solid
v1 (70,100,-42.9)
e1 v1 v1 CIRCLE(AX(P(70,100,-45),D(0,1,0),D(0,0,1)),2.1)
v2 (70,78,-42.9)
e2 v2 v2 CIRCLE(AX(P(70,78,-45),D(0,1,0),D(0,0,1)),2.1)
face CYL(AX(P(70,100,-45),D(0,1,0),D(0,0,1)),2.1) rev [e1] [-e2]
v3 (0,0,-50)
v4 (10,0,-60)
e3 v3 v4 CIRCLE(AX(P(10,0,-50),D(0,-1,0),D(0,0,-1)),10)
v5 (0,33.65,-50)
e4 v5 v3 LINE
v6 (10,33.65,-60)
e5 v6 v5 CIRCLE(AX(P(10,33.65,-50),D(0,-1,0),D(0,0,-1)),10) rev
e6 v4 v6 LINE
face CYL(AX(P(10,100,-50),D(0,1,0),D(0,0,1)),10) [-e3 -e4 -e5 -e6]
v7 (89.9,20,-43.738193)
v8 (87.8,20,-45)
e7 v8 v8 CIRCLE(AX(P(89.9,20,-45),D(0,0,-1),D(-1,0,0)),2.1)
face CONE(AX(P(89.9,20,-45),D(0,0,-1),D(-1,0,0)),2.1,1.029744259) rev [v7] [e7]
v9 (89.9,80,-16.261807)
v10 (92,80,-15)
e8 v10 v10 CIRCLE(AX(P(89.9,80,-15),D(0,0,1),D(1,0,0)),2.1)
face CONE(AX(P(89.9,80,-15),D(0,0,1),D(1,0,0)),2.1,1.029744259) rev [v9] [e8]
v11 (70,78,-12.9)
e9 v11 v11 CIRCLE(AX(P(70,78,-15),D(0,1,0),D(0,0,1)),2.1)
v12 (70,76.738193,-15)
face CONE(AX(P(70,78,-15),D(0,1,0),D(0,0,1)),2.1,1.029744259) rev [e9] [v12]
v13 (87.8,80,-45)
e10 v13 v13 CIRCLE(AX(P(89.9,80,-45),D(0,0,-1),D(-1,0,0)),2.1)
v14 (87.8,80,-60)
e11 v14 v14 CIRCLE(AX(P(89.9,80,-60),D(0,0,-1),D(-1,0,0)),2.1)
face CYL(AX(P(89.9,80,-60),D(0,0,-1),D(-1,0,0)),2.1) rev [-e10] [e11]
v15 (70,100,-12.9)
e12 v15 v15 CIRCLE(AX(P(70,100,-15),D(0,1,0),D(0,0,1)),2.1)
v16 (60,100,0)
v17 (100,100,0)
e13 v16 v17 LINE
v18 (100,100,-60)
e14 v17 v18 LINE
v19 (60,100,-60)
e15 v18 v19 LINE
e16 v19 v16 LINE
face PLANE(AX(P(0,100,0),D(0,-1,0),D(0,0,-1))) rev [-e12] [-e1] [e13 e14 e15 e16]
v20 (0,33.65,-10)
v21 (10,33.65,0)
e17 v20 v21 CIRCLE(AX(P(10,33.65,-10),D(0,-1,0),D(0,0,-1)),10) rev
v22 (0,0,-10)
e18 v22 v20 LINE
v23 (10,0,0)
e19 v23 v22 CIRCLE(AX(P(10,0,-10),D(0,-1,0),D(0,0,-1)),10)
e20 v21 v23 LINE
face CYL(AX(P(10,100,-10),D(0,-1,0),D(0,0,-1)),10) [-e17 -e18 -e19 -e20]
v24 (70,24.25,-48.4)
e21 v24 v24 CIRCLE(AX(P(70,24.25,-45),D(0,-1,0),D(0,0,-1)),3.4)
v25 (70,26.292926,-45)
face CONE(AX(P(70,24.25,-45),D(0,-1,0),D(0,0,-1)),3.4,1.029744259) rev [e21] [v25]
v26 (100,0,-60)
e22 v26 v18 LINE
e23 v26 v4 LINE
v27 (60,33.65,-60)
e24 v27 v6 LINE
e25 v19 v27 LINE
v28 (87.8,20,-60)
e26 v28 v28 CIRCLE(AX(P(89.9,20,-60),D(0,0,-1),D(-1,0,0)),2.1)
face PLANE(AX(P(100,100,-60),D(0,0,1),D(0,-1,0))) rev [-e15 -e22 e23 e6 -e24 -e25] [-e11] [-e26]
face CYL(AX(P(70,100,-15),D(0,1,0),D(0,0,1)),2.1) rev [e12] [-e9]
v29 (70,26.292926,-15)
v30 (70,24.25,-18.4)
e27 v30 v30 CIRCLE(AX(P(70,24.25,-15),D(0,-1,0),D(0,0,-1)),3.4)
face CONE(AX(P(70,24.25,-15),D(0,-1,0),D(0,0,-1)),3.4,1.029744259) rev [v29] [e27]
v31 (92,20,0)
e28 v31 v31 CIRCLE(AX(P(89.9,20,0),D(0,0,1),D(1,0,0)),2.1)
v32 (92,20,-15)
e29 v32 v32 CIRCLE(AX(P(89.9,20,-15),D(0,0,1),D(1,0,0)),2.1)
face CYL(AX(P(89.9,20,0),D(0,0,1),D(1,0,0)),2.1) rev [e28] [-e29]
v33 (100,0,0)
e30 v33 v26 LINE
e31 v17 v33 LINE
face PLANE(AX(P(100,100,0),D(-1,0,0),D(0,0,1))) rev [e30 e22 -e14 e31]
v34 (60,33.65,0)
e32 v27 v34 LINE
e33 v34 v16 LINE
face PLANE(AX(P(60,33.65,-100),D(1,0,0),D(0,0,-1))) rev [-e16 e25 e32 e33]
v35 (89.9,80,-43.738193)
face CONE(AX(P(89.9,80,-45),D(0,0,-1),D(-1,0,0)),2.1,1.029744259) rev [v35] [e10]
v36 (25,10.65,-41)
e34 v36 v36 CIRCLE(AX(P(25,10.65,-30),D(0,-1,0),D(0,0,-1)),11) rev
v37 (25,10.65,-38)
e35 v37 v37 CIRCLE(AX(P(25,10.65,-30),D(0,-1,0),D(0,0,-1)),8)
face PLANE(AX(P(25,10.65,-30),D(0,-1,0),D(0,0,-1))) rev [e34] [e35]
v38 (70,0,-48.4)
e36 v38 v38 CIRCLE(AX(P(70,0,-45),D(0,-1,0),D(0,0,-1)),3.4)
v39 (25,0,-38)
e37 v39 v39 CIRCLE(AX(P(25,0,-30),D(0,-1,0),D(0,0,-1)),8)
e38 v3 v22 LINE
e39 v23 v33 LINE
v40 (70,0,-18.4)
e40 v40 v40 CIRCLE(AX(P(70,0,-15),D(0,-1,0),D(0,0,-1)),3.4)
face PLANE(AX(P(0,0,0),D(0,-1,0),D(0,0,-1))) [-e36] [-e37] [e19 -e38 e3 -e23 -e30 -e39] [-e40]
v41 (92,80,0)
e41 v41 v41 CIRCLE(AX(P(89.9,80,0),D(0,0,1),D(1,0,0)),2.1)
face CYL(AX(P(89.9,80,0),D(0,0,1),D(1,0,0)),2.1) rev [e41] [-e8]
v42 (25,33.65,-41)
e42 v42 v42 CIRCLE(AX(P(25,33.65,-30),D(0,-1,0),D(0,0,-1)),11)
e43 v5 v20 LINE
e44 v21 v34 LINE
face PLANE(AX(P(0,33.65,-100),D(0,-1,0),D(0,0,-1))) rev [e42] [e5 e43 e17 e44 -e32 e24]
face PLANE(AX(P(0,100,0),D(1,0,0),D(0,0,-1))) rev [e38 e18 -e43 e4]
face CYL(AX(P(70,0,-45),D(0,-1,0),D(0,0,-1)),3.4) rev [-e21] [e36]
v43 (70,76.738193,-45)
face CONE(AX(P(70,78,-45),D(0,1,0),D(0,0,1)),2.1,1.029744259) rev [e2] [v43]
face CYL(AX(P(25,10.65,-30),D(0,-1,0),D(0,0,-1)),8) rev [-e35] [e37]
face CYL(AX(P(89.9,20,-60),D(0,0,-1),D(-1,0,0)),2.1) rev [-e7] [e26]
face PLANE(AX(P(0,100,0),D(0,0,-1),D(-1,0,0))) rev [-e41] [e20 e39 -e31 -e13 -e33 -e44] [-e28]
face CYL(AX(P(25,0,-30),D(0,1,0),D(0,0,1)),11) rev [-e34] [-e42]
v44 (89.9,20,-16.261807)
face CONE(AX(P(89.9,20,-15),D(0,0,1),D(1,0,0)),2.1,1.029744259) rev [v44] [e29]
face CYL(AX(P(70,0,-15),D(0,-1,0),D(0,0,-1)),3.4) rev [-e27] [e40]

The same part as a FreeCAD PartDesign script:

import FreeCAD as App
import Part
import Sketcher

V = App.Vector
Q = App.Units.Quantity


def edges_at(feature, points):
    """Names of the edges that pass closest to the given points."""
    edges = feature.Shape.Edges
    near = lambda p: min(range(len(edges)), key=lambda i: edges[i].distToShape(Part.Vertex(*p))[0])
    return sorted({f"Edge{near(p) + 1}" for p in points})


def add_polygon(sketch, points):
    """Adds a closed chain of lines whose ends are joined by coincident constraints."""
    first, n = sketch.GeometryCount, len(points)
    for a, b in zip(points, points[1:] + points[:1]):
        sketch.addGeometry(Part.LineSegment(App.Vector(*a, 0), App.Vector(*b, 0)), False)
    for i in range(n):
        sketch.addConstraint(Sketcher.Constraint("Coincident", first + i, 2, first + (i + 1) % n, 1))

doc = App.newDocument("Part")
params = doc.addObject("Spreadsheet::Sheet", "Params")
for row, (alias, value) in enumerate([
    ("sketch1_width", "100 mm"),
    ("pad1_length", "100 mm"),
    ("sketch2_width", "60 mm"),
    ("sketch2_height", "100 mm"),
    ("sketch3_diameter", "22 mm"),
    ("sketch4_width", "100 mm"),
    ("sketch4_height", "40 mm"),
    ("sketch5_diameter", "22 mm"),
    ("sketch5_diameter2", "16 mm"),
    ("pad2_length", "10.65 mm"),
    ("sketch6_height", "15 mm"),
    ("sketch6_width", "2.1 mm"),
    ("groove_angle", "360 deg"),
    ("linearpattern_pitch", "60 mm"),
    ("sketch7_height", "15 mm"),
    ("sketch7_width", "2.1 mm"),
    ("groove2_angle", "360 deg"),
    ("sketch8_diameter", "4.2 mm"),
    ("hole_diameter", "4.2 mm"),
    ("hole_depth", "22 mm"),
    ("sketch9_diameter", "6.8 mm"),
    ("hole2_diameter", "6.8 mm"),
    ("hole2_depth", "24.25 mm"),
    ("fillet_radius", "10 mm"),
], start=1):
    params.set(f"A{row}", alias)
    params.set(f"B{row}", "=" + value)
    params.setAlias(f"B{row}", alias)

body = doc.addObject("PartDesign::Body", "Body")

# Sketch on XZ plane
sketch1 = body.newObject("Sketcher::SketchObject", "Sketch")
sketch1.AttachmentSupport = (doc.getObject("XZ_Plane"), [""])
sketch1.MapMode = "FlatFace"
add_polygon(sketch1, [(0, -100), (0, 0), (100, 0), (100, -100)])  # lines 0-3
sketch1.addConstraint(Sketcher.Constraint("Vertical", 0))
sketch1.addConstraint(Sketcher.Constraint("Horizontal", 1))
sketch1.addConstraint(Sketcher.Constraint("Vertical", 2))
sketch1.addConstraint(Sketcher.Constraint("Horizontal", 3))
sketch1.addConstraint(Sketcher.Constraint("Coincident", 0, 2, -1, 1))
sketch1.addConstraint(Sketcher.Constraint("Equal", 3, 0))
sketch1.addConstraint(Sketcher.Constraint("DistanceX", 1, 1, 1, 2, 100.0))
sketch1.setExpression("Constraints[10]", "Params.sketch1_width")
pad1 = body.newObject("PartDesign::Pad", "Pad")
pad1.Profile = sketch1
pad1.setExpression("Length", "Params.pad1_length")
pad1.Reversed = True

# Sketch on XY plane
sketch2 = body.newObject("Sketcher::SketchObject", "Sketch001")
sketch2.AttachmentSupport = (doc.getObject("XY_Plane"), [""])
sketch2.MapMode = "FlatFace"
add_polygon(sketch2, [(0, 134), (0, 34), (60, 34), (60, 134)])  # lines 0-3
sketch2.addConstraint(Sketcher.Constraint("Vertical", 0))
sketch2.addConstraint(Sketcher.Constraint("Horizontal", 1))
sketch2.addConstraint(Sketcher.Constraint("Vertical", 2))
sketch2.addConstraint(Sketcher.Constraint("Horizontal", 3))
sketch2.addConstraint(Sketcher.Constraint("PointOnObject", 0, 2, -2))
sketch2.addConstraint(Sketcher.Constraint("DistanceX", 1, 1, 1, 2, 60.0))
sketch2.addConstraint(Sketcher.Constraint("DistanceY", 0, 2, 0, 1, 100.0))
sketch2.addConstraint(Sketcher.Constraint("DistanceY", -1, 1, 0, 2, 33.65))
sketch2.setExpression("Constraints[9]", "Params.sketch2_width")
sketch2.setExpression("Constraints[10]", "Params.sketch2_height")
pocket1 = body.newObject("PartDesign::Pocket", "Pocket")
pocket1.Profile = sketch2
pocket1.Type = "ThroughAll"

# Sketch on XZ plane
sketch3 = body.newObject("Sketcher::SketchObject", "Sketch002")
sketch3.AttachmentSupport = (doc.getObject("XZ_Plane"), [""])
sketch3.MapMode = "FlatFace"
sketch3.AttachmentOffset = App.Placement(V(0, 0, -33.65), App.Rotation())
sketch3.addGeometry(Part.Circle(V(25, -30, 0), V(0, 0, 1), 11), False)
sketch3.addConstraint(Sketcher.Constraint("Diameter", 0, 22.0))
sketch3.addConstraint(Sketcher.Constraint("DistanceX", -1, 1, 0, 3, 25.0))
sketch3.addConstraint(Sketcher.Constraint("DistanceY", 0, 3, -1, 1, 30.0))
sketch3.setExpression("Constraints[0]", "Params.sketch3_diameter")
pocket2 = body.newObject("PartDesign::Pocket", "Pocket001")
pocket2.Profile = sketch3
pocket2.Type = "ThroughAll"
pocket2.Midplane = True

# Sketch on YZ plane
sketch4 = body.newObject("Sketcher::SketchObject", "Sketch003")
sketch4.AttachmentSupport = (doc.getObject("YZ_Plane"), [""])
sketch4.MapMode = "FlatFace"
add_polygon(sketch4, [(100, -100), (0, -100), (0, -60), (100, -60)])  # lines 0-3
sketch4.addConstraint(Sketcher.Constraint("Horizontal", 0))
sketch4.addConstraint(Sketcher.Constraint("Vertical", 1))
sketch4.addConstraint(Sketcher.Constraint("Horizontal", 2))
sketch4.addConstraint(Sketcher.Constraint("Vertical", 3))
sketch4.addConstraint(Sketcher.Constraint("PointOnObject", 0, 2, -2))
sketch4.addConstraint(Sketcher.Constraint("DistanceX", 0, 2, 0, 1, 100.0))
sketch4.addConstraint(Sketcher.Constraint("DistanceY", 1, 1, 1, 2, 40.0))
sketch4.addConstraint(Sketcher.Constraint("DistanceY", 0, 2, -1, 1, 100.0))
sketch4.setExpression("Constraints[9]", "Params.sketch4_width")
sketch4.setExpression("Constraints[10]", "Params.sketch4_height")
pocket3 = body.newObject("PartDesign::Pocket", "Pocket002")
pocket3.Profile = sketch4
pocket3.Type = "ThroughAll"
pocket3.Reversed = True

# Sketch on XZ plane
sketch5 = body.newObject("Sketcher::SketchObject", "Sketch004")
sketch5.AttachmentSupport = (doc.getObject("XZ_Plane"), [""])
sketch5.MapMode = "FlatFace"
sketch5.AttachmentOffset = App.Placement(V(0, 0, -10.65), App.Rotation())
sketch5.addGeometry(Part.Circle(V(25, -30, 0), V(0, 0, 1), 11), False)
sketch5.addGeometry(Part.Circle(V(25, -30, 0), V(0, 0, 1), 8), False)
sketch5.addConstraint(Sketcher.Constraint("Coincident", 1, 3, 0, 3))
sketch5.addConstraint(Sketcher.Constraint("Diameter", 0, 22.0))
sketch5.addConstraint(Sketcher.Constraint("Diameter", 1, 16.0))
sketch5.addConstraint(Sketcher.Constraint("DistanceX", -1, 1, 0, 3, 25.0))
sketch5.addConstraint(Sketcher.Constraint("DistanceY", 0, 3, -1, 1, 30.0))
sketch5.setExpression("Constraints[1]", "Params.sketch5_diameter")
sketch5.setExpression("Constraints[2]", "Params.sketch5_diameter2")
pad2 = body.newObject("PartDesign::Pad", "Pad001")
pad2.Profile = sketch5
pad2.setExpression("Length", "Params.pad2_length")

# Sketch on YZ plane
sketch6 = body.newObject("Sketcher::SketchObject", "Sketch005")
sketch6.AttachmentSupport = (doc.getObject("YZ_Plane"), [""])
sketch6.MapMode = "FlatFace"
sketch6.AttachmentOffset = App.Placement(V(0, 0, 89.9), App.Rotation())
add_polygon(sketch6, [(80, -16.3), (80, 0), (77.9, 0), (77.9, -15)])  # lines 0-3
sketch6.addGeometry(Part.LineSegment(V(80, 0, 0), V(80, -16.3, 0)), True)  # axis
sketch6.addConstraint(Sketcher.Constraint("Vertical", 0))
sketch6.addConstraint(Sketcher.Constraint("Horizontal", 1))
sketch6.addConstraint(Sketcher.Constraint("Vertical", 2))
sketch6.addConstraint(Sketcher.Constraint("Vertical", 4))
sketch6.addConstraint(Sketcher.Constraint("Coincident", 4, 1, 0, 2))
sketch6.addConstraint(Sketcher.Constraint("PointOnObject", 0, 2, -1))
sketch6.addConstraint(Sketcher.Constraint("Equal", 0, 4))
sketch6.addConstraint(Sketcher.Constraint("DistanceY", 2, 2, 2, 1, 15.0))
sketch6.addConstraint(Sketcher.Constraint("Angle", 3, Q("-31 deg")))
sketch6.addConstraint(Sketcher.Constraint("DistanceX", 1, 2, 1, 1, 2.1))
sketch6.addConstraint(Sketcher.Constraint("DistanceX", -1, 1, 0, 2, 80.0))
sketch6.setExpression("Constraints[11]", "Params.sketch6_height")
sketch6.setExpression("Constraints[13]", "Params.sketch6_width")
groove = body.newObject("PartDesign::Groove", "Groove")
groove.Profile = sketch6
groove.ReferenceAxis = (sketch6, ["Axis0"])
groove.setExpression("Angle", "Params.groove_angle")
doc.recompute()

linearpattern = body.newObject("PartDesign::LinearPattern", "LinearPattern")
linearpattern.Originals = [groove]
linearpattern.Direction = (doc.getObject("Y_Axis"), [""])
linearpattern.Mode = "offset"
linearpattern.setExpression("Offset", "Params.linearpattern_pitch")
linearpattern.Occurrences = 2
linearpattern.Reversed = True
body.Tip = linearpattern
doc.recompute()

datumplane = body.newObject("PartDesign::Plane", "DatumPlane")
datumplane.AttachmentSupport = (doc.getObject("XY_Plane"), [""])
datumplane.MapMode = "FlatFace"
datumplane.AttachmentOffset = App.Placement(V(0, 0, -30), App.Rotation())
mirrored = body.newObject("PartDesign::Mirrored", "Mirrored")
mirrored.Originals = [groove]
mirrored.MirrorPlane = (datumplane, [""])
body.Tip = mirrored

# Sketch on YZ plane
sketch7 = body.newObject("Sketcher::SketchObject", "Sketch006")
sketch7.AttachmentSupport = (doc.getObject("YZ_Plane"), [""])
sketch7.MapMode = "FlatFace"
sketch7.AttachmentOffset = App.Placement(V(0, 0, 89.9), App.Rotation())
add_polygon(sketch7, [(20, -60), (20, -43.7), (17.9, -45), (17.9, -60)])  # lines 0-3
sketch7.addGeometry(Part.LineSegment(V(20, -43.7, 0), V(20, -60, 0)), True)  # axis
sketch7.addConstraint(Sketcher.Constraint("Vertical", 0))
sketch7.addConstraint(Sketcher.Constraint("Vertical", 2))
sketch7.addConstraint(Sketcher.Constraint("Horizontal", 3))
sketch7.addConstraint(Sketcher.Constraint("Vertical", 4))
sketch7.addConstraint(Sketcher.Constraint("Coincident", 4, 1, 0, 2))
sketch7.addConstraint(Sketcher.Constraint("Horizontal", 2, 2, 4, 2))
sketch7.addConstraint(Sketcher.Constraint("DistanceY", 2, 2, 2, 1, 15.0))
sketch7.addConstraint(Sketcher.Constraint("Angle", 1, Q("-149 deg")))
sketch7.addConstraint(Sketcher.Constraint("DistanceX", 3, 1, 3, 2, 2.1))
sketch7.addConstraint(Sketcher.Constraint("DistanceX", -1, 1, 0, 2, 20.0))
sketch7.addConstraint(Sketcher.Constraint("DistanceY", 1, 2, -1, 1, 45.0))
sketch7.setExpression("Constraints[10]", "Params.sketch7_height")
sketch7.setExpression("Constraints[12]", "Params.sketch7_width")
groove2 = body.newObject("PartDesign::Groove", "Groove001")
groove2.Profile = sketch7
groove2.ReferenceAxis = (sketch7, ["Axis0"])
groove2.setExpression("Angle", "Params.groove2_angle")

# Sketch on XZ plane
sketch8 = body.newObject("Sketcher::SketchObject", "Sketch007")
sketch8.AttachmentSupport = (doc.getObject("XZ_Plane"), [""])
sketch8.MapMode = "FlatFace"
sketch8.AttachmentOffset = App.Placement(V(0, 0, -100), App.Rotation())
sketch8.addGeometry(Part.Circle(V(70, -45, 0), V(0, 0, 1), 2.1), False)
sketch8.addGeometry(Part.Circle(V(70, -15, 0), V(0, 0, 1), 2.1), False)
sketch8.addConstraint(Sketcher.Constraint("Equal", 0, 1))
sketch8.addConstraint(Sketcher.Constraint("Vertical", 0, 3, 1, 3))
sketch8.addConstraint(Sketcher.Constraint("Diameter", 0, 4.2))
sketch8.addConstraint(Sketcher.Constraint("DistanceX", -1, 1, 0, 3, 70.0))
sketch8.addConstraint(Sketcher.Constraint("DistanceY", 0, 3, -1, 1, 45.0))
sketch8.addConstraint(Sketcher.Constraint("DistanceY", 1, 3, -1, 1, 15.0))
sketch8.setExpression("Constraints[2]", "Params.sketch8_diameter")
doc.recompute()
hole = body.newObject("PartDesign::Hole", "Hole")
hole.Profile = sketch8
hole.ThreadType = "None"
hole.setExpression("Diameter", "Params.hole_diameter")
hole.DepthType = "Dimension"
hole.setExpression("Depth", "Params.hole_depth")
hole.DrillPoint = "Angled"
hole.DrillPointAngle = 118
hole.Reversed = True

# Sketch on XZ plane
sketch9 = body.newObject("Sketcher::SketchObject", "Sketch008")
sketch9.AttachmentSupport = (doc.getObject("XZ_Plane"), [""])
sketch9.MapMode = "FlatFace"
sketch9.addGeometry(Part.Circle(V(70, -15, 0), V(0, 0, 1), 3.4), False)
sketch9.addGeometry(Part.Circle(V(70, -45, 0), V(0, 0, 1), 3.4), False)
sketch9.addConstraint(Sketcher.Constraint("Equal", 0, 1))
sketch9.addConstraint(Sketcher.Constraint("Vertical", 0, 3, 1, 3))
sketch9.addConstraint(Sketcher.Constraint("Diameter", 0, 6.8))
sketch9.addConstraint(Sketcher.Constraint("DistanceX", -1, 1, 0, 3, 70.0))
sketch9.addConstraint(Sketcher.Constraint("DistanceY", 0, 3, -1, 1, 15.0))
sketch9.addConstraint(Sketcher.Constraint("DistanceY", 1, 3, -1, 1, 45.0))
sketch9.setExpression("Constraints[2]", "Params.sketch9_diameter")
doc.recompute()
hole2 = body.newObject("PartDesign::Hole", "Hole001")
hole2.Profile = sketch9
hole2.ThreadType = "None"
hole2.setExpression("Diameter", "Params.hole2_diameter")
hole2.DepthType = "Dimension"
hole2.setExpression("Depth", "Params.hole2_depth")
hole2.DrillPoint = "Angled"
hole2.DrillPointAngle = 118
doc.recompute()

fillet = body.newObject("PartDesign::Fillet", "Fillet")
fillet.Base = (hole2, edges_at(hole2, [(0, 16.825, 0), (0, 16.825, -60)]))
fillet.setExpression("Radius", "Params.fillet_radius")

doc.recompute()
